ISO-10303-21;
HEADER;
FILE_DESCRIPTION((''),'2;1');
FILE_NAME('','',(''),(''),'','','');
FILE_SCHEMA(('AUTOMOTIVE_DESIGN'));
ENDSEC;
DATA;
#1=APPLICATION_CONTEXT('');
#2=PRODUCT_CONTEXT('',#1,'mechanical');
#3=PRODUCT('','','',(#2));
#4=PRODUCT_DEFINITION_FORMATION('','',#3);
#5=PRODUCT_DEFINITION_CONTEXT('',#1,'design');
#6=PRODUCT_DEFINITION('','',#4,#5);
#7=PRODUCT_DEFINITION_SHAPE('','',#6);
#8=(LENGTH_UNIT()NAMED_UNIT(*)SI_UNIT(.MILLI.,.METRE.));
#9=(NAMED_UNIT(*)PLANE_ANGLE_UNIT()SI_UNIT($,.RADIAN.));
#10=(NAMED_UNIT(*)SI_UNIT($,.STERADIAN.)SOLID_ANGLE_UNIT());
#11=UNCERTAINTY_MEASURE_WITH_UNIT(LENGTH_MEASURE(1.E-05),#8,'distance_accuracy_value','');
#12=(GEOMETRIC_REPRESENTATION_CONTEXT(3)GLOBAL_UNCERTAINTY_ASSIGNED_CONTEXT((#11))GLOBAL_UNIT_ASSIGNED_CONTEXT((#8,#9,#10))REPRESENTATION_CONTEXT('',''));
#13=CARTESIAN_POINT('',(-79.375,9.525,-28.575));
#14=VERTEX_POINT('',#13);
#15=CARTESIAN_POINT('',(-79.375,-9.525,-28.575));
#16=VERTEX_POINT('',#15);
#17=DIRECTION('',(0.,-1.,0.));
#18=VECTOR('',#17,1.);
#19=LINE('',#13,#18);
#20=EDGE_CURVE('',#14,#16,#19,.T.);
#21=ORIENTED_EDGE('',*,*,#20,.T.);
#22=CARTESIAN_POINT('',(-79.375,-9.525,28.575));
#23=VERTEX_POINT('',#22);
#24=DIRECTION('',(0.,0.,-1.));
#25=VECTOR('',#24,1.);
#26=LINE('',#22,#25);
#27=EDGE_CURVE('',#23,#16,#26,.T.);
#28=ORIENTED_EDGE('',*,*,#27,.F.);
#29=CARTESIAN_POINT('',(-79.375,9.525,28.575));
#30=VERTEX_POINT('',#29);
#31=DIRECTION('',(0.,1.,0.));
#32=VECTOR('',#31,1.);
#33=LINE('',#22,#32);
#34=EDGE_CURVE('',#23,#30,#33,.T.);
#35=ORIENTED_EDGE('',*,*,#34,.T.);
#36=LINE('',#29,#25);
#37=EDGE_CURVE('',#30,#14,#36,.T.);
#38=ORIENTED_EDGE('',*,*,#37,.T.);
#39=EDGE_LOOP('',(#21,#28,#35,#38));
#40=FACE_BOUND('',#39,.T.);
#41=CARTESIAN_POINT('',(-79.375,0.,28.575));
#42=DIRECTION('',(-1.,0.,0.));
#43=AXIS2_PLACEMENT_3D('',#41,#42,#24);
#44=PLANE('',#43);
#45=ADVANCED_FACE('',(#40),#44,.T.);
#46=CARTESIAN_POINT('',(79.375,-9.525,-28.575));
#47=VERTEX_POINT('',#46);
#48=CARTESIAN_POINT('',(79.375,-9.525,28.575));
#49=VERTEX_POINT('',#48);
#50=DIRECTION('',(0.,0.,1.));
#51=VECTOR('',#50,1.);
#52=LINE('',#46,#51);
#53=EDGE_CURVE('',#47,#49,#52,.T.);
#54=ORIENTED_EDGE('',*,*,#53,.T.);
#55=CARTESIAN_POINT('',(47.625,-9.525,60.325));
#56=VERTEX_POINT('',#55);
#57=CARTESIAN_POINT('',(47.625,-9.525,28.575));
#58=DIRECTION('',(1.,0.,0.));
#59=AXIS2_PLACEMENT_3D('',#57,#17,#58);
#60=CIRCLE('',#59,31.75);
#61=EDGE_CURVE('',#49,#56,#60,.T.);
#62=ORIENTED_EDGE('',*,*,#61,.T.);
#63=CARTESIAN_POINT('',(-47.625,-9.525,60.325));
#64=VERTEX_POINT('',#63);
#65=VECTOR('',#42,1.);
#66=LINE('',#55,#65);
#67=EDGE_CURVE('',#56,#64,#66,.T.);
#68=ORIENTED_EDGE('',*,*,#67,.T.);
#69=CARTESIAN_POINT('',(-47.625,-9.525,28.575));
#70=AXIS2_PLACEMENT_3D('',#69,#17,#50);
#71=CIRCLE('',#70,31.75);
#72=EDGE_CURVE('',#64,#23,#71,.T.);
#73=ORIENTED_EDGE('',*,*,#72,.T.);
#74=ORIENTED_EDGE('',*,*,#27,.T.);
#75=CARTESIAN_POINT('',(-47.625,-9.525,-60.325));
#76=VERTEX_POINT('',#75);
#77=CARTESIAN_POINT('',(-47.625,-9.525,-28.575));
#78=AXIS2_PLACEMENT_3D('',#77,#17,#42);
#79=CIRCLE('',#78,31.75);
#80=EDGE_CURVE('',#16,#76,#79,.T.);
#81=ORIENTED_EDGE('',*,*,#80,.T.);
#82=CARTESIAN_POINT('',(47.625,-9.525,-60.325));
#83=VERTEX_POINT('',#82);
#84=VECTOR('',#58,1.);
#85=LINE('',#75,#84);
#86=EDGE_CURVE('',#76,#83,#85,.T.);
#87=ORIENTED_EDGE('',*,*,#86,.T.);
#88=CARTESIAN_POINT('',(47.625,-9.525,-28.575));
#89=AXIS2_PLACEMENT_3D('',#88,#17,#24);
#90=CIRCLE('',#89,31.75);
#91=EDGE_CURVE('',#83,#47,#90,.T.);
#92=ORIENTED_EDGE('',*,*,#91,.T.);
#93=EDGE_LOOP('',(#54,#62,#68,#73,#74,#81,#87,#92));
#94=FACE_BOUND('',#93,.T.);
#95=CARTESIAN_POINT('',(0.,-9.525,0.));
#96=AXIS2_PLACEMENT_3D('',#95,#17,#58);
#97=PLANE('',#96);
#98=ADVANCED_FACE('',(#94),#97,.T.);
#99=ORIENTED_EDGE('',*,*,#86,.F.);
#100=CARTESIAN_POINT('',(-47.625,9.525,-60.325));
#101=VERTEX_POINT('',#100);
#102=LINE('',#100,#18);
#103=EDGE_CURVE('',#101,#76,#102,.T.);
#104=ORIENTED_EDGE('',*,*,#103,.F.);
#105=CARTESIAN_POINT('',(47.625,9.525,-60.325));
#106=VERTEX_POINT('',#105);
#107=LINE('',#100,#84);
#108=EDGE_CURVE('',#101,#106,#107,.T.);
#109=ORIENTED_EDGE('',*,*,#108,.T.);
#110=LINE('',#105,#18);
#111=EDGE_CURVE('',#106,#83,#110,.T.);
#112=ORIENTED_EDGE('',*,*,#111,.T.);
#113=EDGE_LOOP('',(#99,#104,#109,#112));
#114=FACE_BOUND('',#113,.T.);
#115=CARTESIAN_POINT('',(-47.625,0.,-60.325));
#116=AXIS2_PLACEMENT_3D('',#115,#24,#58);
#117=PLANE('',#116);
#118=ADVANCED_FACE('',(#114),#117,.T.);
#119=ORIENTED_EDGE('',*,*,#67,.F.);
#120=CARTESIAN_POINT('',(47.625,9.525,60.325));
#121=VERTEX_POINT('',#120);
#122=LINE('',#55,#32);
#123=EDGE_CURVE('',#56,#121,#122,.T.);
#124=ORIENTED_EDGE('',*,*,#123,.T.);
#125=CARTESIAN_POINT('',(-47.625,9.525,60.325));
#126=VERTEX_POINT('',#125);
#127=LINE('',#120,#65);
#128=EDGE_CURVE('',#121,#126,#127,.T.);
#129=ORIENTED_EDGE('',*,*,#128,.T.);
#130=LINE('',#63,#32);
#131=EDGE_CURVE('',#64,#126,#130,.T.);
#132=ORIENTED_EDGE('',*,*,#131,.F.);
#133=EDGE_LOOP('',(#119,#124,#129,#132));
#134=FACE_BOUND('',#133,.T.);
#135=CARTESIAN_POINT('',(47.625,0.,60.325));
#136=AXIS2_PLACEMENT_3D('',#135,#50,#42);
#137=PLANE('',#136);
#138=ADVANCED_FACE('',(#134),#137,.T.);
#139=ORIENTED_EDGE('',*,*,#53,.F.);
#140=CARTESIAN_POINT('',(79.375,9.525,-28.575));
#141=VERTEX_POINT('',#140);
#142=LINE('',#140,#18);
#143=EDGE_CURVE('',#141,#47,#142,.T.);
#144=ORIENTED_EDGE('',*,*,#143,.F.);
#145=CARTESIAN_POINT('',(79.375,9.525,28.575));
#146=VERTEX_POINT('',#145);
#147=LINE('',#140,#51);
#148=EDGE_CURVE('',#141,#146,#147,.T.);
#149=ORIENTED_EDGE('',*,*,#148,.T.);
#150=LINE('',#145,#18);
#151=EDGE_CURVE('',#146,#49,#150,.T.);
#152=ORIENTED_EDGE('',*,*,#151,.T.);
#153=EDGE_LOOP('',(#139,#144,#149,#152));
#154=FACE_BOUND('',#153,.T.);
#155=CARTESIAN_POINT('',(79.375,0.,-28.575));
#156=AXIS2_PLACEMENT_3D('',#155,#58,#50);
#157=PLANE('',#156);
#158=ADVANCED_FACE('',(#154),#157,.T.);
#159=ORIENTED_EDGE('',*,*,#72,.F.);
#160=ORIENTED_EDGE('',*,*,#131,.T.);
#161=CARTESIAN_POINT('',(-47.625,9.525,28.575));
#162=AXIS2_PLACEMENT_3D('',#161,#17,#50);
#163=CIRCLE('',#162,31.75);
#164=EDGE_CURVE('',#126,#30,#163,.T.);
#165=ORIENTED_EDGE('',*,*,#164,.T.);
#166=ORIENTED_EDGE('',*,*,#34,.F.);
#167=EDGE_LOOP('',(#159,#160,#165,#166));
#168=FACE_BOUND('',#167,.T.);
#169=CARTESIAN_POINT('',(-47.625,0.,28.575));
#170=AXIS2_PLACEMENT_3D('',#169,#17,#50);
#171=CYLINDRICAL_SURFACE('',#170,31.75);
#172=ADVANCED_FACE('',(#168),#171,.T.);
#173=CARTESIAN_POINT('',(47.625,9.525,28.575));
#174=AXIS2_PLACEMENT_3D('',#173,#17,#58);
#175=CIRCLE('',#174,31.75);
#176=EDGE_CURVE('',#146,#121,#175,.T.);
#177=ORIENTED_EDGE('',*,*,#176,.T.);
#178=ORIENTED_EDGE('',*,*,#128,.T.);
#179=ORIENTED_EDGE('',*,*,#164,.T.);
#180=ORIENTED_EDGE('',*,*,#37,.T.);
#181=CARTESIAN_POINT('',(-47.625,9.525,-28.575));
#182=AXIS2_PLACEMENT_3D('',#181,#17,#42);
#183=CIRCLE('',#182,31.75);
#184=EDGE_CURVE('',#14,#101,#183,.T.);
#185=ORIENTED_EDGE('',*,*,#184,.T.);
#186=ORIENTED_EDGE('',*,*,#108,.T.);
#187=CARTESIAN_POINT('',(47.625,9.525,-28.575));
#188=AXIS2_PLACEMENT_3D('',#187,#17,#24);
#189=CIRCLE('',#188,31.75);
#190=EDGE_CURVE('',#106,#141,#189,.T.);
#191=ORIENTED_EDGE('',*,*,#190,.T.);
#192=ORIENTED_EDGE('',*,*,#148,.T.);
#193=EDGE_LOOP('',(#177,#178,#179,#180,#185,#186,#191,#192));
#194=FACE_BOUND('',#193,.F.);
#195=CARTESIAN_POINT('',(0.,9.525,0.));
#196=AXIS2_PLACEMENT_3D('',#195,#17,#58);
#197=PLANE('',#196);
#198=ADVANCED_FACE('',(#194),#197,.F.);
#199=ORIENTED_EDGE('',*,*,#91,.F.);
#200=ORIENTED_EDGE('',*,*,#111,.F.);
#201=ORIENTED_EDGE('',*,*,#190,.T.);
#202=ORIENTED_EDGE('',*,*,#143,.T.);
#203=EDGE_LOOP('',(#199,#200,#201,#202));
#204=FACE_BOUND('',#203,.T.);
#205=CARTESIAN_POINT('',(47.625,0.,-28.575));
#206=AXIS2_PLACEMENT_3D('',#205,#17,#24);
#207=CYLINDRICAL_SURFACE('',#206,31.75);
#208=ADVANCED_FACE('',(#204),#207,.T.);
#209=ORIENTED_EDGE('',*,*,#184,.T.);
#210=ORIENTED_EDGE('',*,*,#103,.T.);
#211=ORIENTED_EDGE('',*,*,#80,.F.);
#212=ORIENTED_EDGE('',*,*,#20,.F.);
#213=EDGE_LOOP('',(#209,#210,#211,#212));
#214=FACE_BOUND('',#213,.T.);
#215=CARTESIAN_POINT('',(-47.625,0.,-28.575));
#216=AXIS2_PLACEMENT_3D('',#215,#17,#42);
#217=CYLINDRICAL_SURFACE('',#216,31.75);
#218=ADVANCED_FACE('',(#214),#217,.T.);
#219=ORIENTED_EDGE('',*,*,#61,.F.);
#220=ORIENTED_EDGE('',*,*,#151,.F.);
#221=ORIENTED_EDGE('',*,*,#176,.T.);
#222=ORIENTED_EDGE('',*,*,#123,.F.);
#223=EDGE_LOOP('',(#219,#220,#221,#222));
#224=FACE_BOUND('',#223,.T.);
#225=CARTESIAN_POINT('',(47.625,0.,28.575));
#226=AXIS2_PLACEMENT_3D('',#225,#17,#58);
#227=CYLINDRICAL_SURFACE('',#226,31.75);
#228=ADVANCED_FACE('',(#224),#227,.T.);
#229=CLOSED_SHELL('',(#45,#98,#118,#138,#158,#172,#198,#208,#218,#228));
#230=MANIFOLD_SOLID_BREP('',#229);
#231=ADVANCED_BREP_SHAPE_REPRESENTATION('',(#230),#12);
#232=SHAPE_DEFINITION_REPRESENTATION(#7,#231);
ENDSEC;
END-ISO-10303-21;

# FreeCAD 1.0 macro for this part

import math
import FreeCAD as App
import Part
import Sketcher
Q = App.Units.Quantity

doc = App.newDocument("Part")
body = doc.addObject("PartDesign::Body", "Body")

# Sketch on XZ plane
sketch1 = body.newObject("Sketcher::SketchObject", "Sketch")
sketch1.AttachmentSupport = (doc.getObject("XZ_Plane"), [""])
sketch1.MapMode = "FlatFace"
sketch1.addGeometry([
    Part.LineSegment(App.Vector(-79, 29, 0), App.Vector(-79, -29, 0)),  # 0
    Part.ArcOfCircle(Part.Circle(App.Vector(-48, -29, 0), App.Vector(0, 0, 1), 32), math.radians(180), math.radians(270)),  # 1
    Part.LineSegment(App.Vector(-48, -60, 0), App.Vector(48, -60, 0)),  # 2
    Part.ArcOfCircle(Part.Circle(App.Vector(48, -29, 0), App.Vector(0, 0, 1), 32), math.radians(-90), math.radians(0)),  # 3
    Part.LineSegment(App.Vector(79, -29, 0), App.Vector(79, 29, 0)),  # 4
    Part.ArcOfCircle(Part.Circle(App.Vector(48, 29, 0), App.Vector(0, 0, 1), 32), math.radians(0), math.radians(90)),  # 5
    Part.LineSegment(App.Vector(48, 60, 0), App.Vector(-48, 60, 0)),  # 6
    Part.ArcOfCircle(Part.Circle(App.Vector(-48, 29, 0), App.Vector(0, 0, 1), 32), math.radians(90), math.radians(180)),  # 7
], False)
sketch1.addConstraint([
    Sketcher.Constraint("Tangent", 0, 2, 1, 1),
    Sketcher.Constraint("Tangent", 1, 2, 2, 1),
    Sketcher.Constraint("Tangent", 2, 2, 3, 1),
    Sketcher.Constraint("Tangent", 3, 2, 4, 1),
    Sketcher.Constraint("Tangent", 4, 2, 5, 1),
    Sketcher.Constraint("Tangent", 5, 2, 6, 1),
    Sketcher.Constraint("Tangent", 6, 2, 7, 1),
    Sketcher.Constraint("Tangent", 7, 2, 0, 1),
    Sketcher.Constraint("Vertical", 0),
    Sketcher.Constraint("Horizontal", 2),
    Sketcher.Constraint("Vertical", 4),
    Sketcher.Constraint("Horizontal", 6),
    Sketcher.Constraint("Equal", 1, 3),
    Sketcher.Constraint("Equal", 3, 5),
    Sketcher.Constraint("Equal", 5, 7),
    Sketcher.Constraint("Symmetric", 1, 3, 5, 3, -1, 1),
    Sketcher.Constraint("Radius", 1, Q("1.25 in")),
    Sketcher.Constraint("DistanceX", 0, 2, 3, 3, Q("5 in")),
    Sketcher.Constraint("DistanceY", 0, 2, 0, 1, Q("2.25 in")),
])
pad1 = body.newObject("PartDesign::Pad", "Pad")
pad1.Profile = sketch1
pad1.Length = Q("0.75 in")
pad1.Midplane = True

doc.recompute()
